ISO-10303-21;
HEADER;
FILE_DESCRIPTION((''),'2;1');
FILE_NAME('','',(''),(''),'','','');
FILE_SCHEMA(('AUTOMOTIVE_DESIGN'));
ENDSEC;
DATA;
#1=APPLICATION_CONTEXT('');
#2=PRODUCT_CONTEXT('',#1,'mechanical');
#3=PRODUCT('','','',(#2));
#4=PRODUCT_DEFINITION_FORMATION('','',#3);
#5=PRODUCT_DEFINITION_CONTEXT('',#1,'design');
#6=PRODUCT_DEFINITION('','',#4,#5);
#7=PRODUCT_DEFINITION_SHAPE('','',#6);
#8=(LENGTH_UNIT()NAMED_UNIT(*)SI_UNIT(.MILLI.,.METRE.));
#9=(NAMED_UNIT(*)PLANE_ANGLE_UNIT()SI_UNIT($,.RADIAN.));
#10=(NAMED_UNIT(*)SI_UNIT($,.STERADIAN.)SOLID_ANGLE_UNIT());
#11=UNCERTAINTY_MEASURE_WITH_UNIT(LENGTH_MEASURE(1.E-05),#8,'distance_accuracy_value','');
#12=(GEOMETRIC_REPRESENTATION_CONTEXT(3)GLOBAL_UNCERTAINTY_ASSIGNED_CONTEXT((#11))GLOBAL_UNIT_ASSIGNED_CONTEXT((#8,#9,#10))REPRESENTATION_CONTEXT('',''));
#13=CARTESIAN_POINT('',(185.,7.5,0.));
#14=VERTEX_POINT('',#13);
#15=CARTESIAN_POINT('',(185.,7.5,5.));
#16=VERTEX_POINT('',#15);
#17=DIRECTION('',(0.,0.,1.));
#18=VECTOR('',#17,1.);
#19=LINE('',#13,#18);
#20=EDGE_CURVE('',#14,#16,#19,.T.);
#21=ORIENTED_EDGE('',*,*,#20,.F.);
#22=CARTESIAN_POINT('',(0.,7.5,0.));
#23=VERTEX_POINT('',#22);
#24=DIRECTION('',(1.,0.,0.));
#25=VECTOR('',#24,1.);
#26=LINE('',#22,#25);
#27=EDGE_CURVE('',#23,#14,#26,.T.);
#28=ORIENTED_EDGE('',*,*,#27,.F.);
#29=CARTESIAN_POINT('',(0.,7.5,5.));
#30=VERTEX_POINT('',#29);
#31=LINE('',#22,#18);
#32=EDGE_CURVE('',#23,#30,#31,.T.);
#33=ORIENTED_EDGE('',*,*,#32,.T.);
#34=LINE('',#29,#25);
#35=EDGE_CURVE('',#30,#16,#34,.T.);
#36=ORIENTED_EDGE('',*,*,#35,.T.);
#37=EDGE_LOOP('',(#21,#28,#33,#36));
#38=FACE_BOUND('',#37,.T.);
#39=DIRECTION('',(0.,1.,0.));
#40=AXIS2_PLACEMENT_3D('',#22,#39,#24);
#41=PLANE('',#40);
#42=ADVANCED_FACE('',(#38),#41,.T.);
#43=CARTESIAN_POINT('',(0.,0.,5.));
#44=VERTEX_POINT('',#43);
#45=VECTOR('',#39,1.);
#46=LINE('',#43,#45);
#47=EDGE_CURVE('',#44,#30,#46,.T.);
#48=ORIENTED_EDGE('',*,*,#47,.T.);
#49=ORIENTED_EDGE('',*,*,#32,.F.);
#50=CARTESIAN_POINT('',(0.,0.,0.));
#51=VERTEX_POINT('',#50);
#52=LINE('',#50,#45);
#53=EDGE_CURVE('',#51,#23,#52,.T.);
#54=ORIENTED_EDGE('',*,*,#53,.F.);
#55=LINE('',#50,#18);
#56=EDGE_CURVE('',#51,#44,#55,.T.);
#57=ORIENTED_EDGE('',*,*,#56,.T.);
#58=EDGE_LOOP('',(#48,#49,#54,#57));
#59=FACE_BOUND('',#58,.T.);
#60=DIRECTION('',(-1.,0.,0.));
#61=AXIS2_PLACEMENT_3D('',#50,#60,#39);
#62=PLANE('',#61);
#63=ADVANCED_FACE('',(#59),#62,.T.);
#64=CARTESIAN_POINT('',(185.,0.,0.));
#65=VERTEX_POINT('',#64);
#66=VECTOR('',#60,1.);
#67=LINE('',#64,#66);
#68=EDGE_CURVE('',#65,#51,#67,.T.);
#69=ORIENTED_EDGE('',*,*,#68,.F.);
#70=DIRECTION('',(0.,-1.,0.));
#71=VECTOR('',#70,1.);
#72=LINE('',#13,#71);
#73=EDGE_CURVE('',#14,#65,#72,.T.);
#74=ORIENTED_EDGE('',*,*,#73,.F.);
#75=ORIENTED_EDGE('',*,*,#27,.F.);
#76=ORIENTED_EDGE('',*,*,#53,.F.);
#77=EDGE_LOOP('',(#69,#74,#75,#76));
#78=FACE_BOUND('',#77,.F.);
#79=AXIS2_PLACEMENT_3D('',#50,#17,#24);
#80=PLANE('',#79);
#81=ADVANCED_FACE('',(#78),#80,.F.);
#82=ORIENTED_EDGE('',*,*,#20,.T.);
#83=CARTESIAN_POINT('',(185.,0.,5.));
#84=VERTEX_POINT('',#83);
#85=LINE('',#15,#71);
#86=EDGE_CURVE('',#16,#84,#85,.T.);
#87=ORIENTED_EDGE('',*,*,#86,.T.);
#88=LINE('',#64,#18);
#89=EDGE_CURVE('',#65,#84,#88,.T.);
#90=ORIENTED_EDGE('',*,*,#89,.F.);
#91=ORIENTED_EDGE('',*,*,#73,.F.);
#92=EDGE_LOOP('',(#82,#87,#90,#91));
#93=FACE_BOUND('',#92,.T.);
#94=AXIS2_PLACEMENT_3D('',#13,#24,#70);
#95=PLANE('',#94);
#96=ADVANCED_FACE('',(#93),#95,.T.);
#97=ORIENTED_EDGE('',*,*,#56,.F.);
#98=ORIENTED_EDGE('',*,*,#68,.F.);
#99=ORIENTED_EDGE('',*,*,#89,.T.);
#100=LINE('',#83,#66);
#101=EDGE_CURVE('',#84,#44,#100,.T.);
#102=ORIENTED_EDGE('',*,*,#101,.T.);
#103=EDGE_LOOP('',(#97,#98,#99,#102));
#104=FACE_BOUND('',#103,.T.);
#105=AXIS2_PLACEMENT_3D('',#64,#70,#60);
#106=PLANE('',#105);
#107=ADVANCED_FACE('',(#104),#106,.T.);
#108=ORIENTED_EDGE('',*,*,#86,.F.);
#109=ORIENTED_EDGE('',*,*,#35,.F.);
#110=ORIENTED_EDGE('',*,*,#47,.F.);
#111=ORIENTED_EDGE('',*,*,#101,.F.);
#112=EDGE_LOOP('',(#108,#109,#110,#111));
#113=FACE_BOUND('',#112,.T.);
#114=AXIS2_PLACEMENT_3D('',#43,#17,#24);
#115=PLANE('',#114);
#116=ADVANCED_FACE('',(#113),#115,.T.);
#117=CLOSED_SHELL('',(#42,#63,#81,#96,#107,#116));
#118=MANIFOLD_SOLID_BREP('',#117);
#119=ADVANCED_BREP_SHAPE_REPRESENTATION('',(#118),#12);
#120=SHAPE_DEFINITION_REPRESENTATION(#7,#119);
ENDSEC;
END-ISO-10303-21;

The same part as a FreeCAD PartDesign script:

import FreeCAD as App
import Part
import Sketcher

V = App.Vector


def add_polygon(sketch, points):
    """Adds a closed chain of lines whose ends are joined by coincident constraints."""
    first, n = sketch.GeometryCount, len(points)
    for a, b in zip(points, points[1:] + points[:1]):
        sketch.addGeometry(Part.LineSegment(App.Vector(*a, 0), App.Vector(*b, 0)), False)
    for i in range(n):
        sketch.addConstraint(Sketcher.Constraint("Coincident", first + i, 2, first + (i + 1) % n, 1))

doc = App.newDocument("Part")
params = doc.addObject("Spreadsheet::Sheet", "Params")
for row, (alias, value) in enumerate([
    ("sketch1_width", "185 mm"),
    ("sketch1_height", "7.5 mm"),
    ("pad1_length", "5 mm"),
], start=1):
    params.set(f"A{row}", alias)
    params.set(f"B{row}", "=" + value)
    params.setAlias(f"B{row}", alias)

body = doc.addObject("PartDesign::Body", "Body")

# Sketch on XY plane
sketch1 = body.newObject("Sketcher::SketchObject", "Sketch")
sketch1.AttachmentSupport = (doc.getObject("XY_Plane"), [""])
sketch1.MapMode = "FlatFace"
add_polygon(sketch1, [(0, 8), (0, 0), (185, 0), (185, 8)])  # lines 0-3
sketch1.addConstraint(Sketcher.Constraint("Vertical", 0))
sketch1.addConstraint(Sketcher.Constraint("Horizontal", 1))
sketch1.addConstraint(Sketcher.Constraint("Vertical", 2))
sketch1.addConstraint(Sketcher.Constraint("Horizontal", 3))
sketch1.addConstraint(Sketcher.Constraint("Coincident", 0, 2, -1, 1))
sketch1.addConstraint(Sketcher.Constraint("DistanceX", 1, 1, 1, 2, 185.0))
sketch1.addConstraint(Sketcher.Constraint("DistanceY", 0, 2, 0, 1, 7.5))
sketch1.setExpression("Constraints[9]", "Params.sketch1_width")
sketch1.setExpression("Constraints[10]", "Params.sketch1_height")
pad1 = body.newObject("PartDesign::Pad", "Pad")
pad1.Profile = sketch1
pad1.setExpression("Length", "Params.pad1_length")

doc.recompute()
